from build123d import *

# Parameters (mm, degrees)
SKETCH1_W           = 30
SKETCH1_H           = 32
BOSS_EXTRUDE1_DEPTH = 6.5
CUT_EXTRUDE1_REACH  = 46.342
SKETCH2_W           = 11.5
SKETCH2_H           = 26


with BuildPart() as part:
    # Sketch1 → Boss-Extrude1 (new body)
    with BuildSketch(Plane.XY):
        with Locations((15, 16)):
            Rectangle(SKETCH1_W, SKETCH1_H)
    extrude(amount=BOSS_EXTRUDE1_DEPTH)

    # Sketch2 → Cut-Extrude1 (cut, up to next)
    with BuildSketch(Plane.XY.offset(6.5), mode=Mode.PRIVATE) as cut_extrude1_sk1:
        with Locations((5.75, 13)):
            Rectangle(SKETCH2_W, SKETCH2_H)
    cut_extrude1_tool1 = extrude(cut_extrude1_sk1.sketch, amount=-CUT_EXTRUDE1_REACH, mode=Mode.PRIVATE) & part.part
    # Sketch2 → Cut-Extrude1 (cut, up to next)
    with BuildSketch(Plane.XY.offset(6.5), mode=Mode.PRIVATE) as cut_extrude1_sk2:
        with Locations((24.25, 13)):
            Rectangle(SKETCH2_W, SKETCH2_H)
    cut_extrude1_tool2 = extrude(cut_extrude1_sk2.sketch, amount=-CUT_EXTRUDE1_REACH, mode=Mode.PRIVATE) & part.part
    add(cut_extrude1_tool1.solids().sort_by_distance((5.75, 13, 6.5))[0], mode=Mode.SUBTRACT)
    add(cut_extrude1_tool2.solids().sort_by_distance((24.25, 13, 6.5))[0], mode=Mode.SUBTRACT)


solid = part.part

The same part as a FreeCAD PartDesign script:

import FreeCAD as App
import Part
import Sketcher
from FreeCAD import Vector
Q = App.Units.Quantity


def add_polygon(sketch, points):
    """Adds a closed chain of lines whose ends are joined by coincident constraints."""
    first, n = sketch.GeometryCount, len(points)
    for a, b in zip(points, points[1:] + points[:1]):
        sketch.addGeometry(Part.LineSegment(App.Vector(*a, 0), App.Vector(*b, 0)), False)
    for i in range(n):
        sketch.addConstraint(Sketcher.Constraint("Coincident", first + i, 2, first + (i + 1) % n, 1))

doc = App.newDocument("Part")
body = doc.addObject("PartDesign::Body", "Body")

# Sketch on XY plane
sketch1 = body.newObject("Sketcher::SketchObject", "Sketch")
sketch1.AttachmentSupport = (doc.getObject("XY_Plane"), [""])
sketch1.MapMode = "FlatFace"
add_polygon(sketch1, [(0, 32), (0, 0), (30, 0), (30, 32)])  # lines 0-3
sketch1.addConstraint([
    Sketcher.Constraint("Vertical", 0),
    Sketcher.Constraint("Horizontal", 1),
    Sketcher.Constraint("Vertical", 2),
    Sketcher.Constraint("Horizontal", 3),
    Sketcher.Constraint("Coincident", 0, 2, -1, 1),
    Sketcher.Constraint("DistanceX", 1, 1, 1, 2, Q("30 mm")),
    Sketcher.Constraint("DistanceY", 0, 2, 0, 1, Q("32 mm")),
])
pad1 = body.newObject("PartDesign::Pad", "Pad")
pad1.Profile = sketch1
pad1.Length = 6.5

# Sketch on XY plane
sketch2 = body.newObject("Sketcher::SketchObject", "Sketch001")
sketch2.AttachmentSupport = (doc.getObject("XY_Plane"), [""])
sketch2.MapMode = "FlatFace"
sketch2.AttachmentOffset = App.Placement(Vector(0, 0, 6.5), App.Rotation())
add_polygon(sketch2, [(0, 26), (0, 0), (12, 0), (12, 26)])  # lines 0-3
sketch2.addConstraint([
    Sketcher.Constraint("Vertical", 0),
    Sketcher.Constraint("Horizontal", 1),
    Sketcher.Constraint("Vertical", 2),
    Sketcher.Constraint("Horizontal", 3),
    Sketcher.Constraint("Coincident", 0, 2, -1, 1),
    Sketcher.Constraint("DistanceY", 0, 2, 0, 1, Q("26 mm")),
    Sketcher.Constraint("DistanceX", 1, 1, 1, 2, Q("11.5 mm")),
])
pocket1 = body.newObject("PartDesign::Pocket", "Pocket")
pocket1.Profile = sketch2
pocket1.Type = "UpToFirst"

# Sketch on XY plane
sketch3 = body.newObject("Sketcher::SketchObject", "Sketch002")
sketch3.AttachmentSupport = (doc.getObject("XY_Plane"), [""])
sketch3.MapMode = "FlatFace"
sketch3.AttachmentOffset = App.Placement(Vector(0, 0, 6.5), App.Rotation())
add_polygon(sketch3, [(18, 26), (18, 0), (30, 0), (30, 26)])  # lines 0-3
sketch3.addConstraint([
    Sketcher.Constraint("Vertical", 0),
    Sketcher.Constraint("Horizontal", 1),
    Sketcher.Constraint("Vertical", 2),
    Sketcher.Constraint("Horizontal", 3),
    Sketcher.Constraint("PointOnObject", 0, 2, -1),
    Sketcher.Constraint("DistanceY", 0, 2, 0, 1, Q("26 mm")),
    Sketcher.Constraint("DistanceX", 1, 1, 1, 2, Q("11.5 mm")),
    Sketcher.Constraint("DistanceX", -1, 1, 1, 2, Q("30 mm")),
])
pocket2 = body.newObject("PartDesign::Pocket", "Pocket001")
pocket2.Profile = sketch3
pocket2.Type = "UpToFirst"

doc.recompute()
